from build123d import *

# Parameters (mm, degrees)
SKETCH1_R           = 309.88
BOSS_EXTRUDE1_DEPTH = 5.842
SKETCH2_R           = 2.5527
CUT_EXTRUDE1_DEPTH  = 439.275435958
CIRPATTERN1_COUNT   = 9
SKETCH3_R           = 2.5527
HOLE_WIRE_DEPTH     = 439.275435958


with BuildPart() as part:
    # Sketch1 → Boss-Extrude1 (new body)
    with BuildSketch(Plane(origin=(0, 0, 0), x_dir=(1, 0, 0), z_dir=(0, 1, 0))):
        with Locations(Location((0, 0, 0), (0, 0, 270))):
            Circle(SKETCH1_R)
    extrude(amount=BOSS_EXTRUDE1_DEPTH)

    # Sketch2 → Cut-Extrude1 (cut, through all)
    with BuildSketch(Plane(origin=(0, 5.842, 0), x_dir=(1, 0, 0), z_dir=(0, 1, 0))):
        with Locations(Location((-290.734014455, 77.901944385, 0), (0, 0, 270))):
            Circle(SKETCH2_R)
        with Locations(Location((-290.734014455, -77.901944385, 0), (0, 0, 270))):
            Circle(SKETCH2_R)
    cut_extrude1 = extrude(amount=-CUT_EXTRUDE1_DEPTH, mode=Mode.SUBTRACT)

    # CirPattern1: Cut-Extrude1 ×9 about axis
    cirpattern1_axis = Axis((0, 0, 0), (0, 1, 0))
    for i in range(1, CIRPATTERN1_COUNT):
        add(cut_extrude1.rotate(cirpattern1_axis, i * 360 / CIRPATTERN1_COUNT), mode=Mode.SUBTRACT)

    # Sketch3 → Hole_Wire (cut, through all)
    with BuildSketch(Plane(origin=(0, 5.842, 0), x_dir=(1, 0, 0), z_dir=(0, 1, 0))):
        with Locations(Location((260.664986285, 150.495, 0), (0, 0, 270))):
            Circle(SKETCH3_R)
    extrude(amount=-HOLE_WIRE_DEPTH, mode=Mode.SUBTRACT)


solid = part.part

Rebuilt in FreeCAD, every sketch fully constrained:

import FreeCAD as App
import Part
import Sketcher

V = App.Vector
Q = App.Units.Quantity

doc = App.newDocument("Part")
body = doc.addObject("PartDesign::Body", "Body")

# Sketch on XZ plane
sketch1 = body.newObject("Sketcher::SketchObject", "Sketch")
sketch1.AttachmentSupport = (doc.getObject("XZ_Plane"), [""])
sketch1.MapMode = "FlatFace"
sketch1.addGeometry(Part.Circle(V(0, 0, 0), V(0, 0, 1), 310), False)
sketch1.addConstraint([
    Sketcher.Constraint("Coincident", 0, 3, -1, 1),
    Sketcher.Constraint("Diameter", 0, Q("24.4 in")),
])
pad1 = body.newObject("PartDesign::Pad", "Pad")
pad1.Profile = sketch1
pad1.Length = Q("0.23 in")
pad1.Reversed = True

# Sketch on XZ plane
sketch2 = body.newObject("Sketcher::SketchObject", "Sketch001")
sketch2.AttachmentSupport = (doc.getObject("XZ_Plane"), [""])
sketch2.MapMode = "FlatFace"
sketch2.AttachmentOffset = App.Placement(V(0, 0, -0.23 * 25.4), App.Rotation())
sketch2.addGeometry([
    Part.Circle(V(-290.7, -77.9, 0), V(0, 0, 1), 2.6),
    Part.Circle(V(-290.7, 77.9, 0), V(0, 0, 1), 2.6),
], False)
sketch2.addConstraint([
    Sketcher.Constraint("Equal", 0, 1),
    Sketcher.Constraint("Symmetric", 0, 3, 1, 3, -1),
    Sketcher.Constraint("Diameter", 0, Q("0.201 in")),
    Sketcher.Constraint("DistanceY", 0, 3, 1, 3, 155.803889),
    Sketcher.Constraint("DistanceX", 0, 3, -1, 1, 290.734014),
])
pocket1 = body.newObject("PartDesign::Pocket", "Pocket")
pocket1.Profile = sketch2
pocket1.Type = "ThroughAll"
pocket1.Reversed = True
doc.recompute()

polarpattern = body.newObject("PartDesign::PolarPattern", "PolarPattern")
polarpattern.Originals = [pocket1]
polarpattern.Axis = (doc.getObject("Y_Axis"), [""])
polarpattern.Angle = 360
polarpattern.Occurrences = 9
body.Tip = polarpattern

# Sketch on XZ plane
sketch3 = body.newObject("Sketcher::SketchObject", "Sketch002")
sketch3.AttachmentSupport = (doc.getObject("XZ_Plane"), [""])
sketch3.MapMode = "FlatFace"
sketch3.AttachmentOffset = App.Placement(V(0, 0, -0.23 * 25.4), App.Rotation())
sketch3.addGeometry(Part.Circle(V(260.7, -150.5, 0), V(0, 0, 1), 2.6), False)
sketch3.addConstraint([
    Sketcher.Constraint("Diameter", 0, Q("0.201 in")),
    Sketcher.Constraint("DistanceY", 0, 3, -1, 1, Q("5.925 in")),
    Sketcher.Constraint("DistanceX", -1, 1, 0, 3, 260.664986),
])
pocket2 = body.newObject("PartDesign::Pocket", "Pocket001")
pocket2.Profile = sketch3
pocket2.Type = "ThroughAll"
pocket2.Reversed = True

doc.recompute()
